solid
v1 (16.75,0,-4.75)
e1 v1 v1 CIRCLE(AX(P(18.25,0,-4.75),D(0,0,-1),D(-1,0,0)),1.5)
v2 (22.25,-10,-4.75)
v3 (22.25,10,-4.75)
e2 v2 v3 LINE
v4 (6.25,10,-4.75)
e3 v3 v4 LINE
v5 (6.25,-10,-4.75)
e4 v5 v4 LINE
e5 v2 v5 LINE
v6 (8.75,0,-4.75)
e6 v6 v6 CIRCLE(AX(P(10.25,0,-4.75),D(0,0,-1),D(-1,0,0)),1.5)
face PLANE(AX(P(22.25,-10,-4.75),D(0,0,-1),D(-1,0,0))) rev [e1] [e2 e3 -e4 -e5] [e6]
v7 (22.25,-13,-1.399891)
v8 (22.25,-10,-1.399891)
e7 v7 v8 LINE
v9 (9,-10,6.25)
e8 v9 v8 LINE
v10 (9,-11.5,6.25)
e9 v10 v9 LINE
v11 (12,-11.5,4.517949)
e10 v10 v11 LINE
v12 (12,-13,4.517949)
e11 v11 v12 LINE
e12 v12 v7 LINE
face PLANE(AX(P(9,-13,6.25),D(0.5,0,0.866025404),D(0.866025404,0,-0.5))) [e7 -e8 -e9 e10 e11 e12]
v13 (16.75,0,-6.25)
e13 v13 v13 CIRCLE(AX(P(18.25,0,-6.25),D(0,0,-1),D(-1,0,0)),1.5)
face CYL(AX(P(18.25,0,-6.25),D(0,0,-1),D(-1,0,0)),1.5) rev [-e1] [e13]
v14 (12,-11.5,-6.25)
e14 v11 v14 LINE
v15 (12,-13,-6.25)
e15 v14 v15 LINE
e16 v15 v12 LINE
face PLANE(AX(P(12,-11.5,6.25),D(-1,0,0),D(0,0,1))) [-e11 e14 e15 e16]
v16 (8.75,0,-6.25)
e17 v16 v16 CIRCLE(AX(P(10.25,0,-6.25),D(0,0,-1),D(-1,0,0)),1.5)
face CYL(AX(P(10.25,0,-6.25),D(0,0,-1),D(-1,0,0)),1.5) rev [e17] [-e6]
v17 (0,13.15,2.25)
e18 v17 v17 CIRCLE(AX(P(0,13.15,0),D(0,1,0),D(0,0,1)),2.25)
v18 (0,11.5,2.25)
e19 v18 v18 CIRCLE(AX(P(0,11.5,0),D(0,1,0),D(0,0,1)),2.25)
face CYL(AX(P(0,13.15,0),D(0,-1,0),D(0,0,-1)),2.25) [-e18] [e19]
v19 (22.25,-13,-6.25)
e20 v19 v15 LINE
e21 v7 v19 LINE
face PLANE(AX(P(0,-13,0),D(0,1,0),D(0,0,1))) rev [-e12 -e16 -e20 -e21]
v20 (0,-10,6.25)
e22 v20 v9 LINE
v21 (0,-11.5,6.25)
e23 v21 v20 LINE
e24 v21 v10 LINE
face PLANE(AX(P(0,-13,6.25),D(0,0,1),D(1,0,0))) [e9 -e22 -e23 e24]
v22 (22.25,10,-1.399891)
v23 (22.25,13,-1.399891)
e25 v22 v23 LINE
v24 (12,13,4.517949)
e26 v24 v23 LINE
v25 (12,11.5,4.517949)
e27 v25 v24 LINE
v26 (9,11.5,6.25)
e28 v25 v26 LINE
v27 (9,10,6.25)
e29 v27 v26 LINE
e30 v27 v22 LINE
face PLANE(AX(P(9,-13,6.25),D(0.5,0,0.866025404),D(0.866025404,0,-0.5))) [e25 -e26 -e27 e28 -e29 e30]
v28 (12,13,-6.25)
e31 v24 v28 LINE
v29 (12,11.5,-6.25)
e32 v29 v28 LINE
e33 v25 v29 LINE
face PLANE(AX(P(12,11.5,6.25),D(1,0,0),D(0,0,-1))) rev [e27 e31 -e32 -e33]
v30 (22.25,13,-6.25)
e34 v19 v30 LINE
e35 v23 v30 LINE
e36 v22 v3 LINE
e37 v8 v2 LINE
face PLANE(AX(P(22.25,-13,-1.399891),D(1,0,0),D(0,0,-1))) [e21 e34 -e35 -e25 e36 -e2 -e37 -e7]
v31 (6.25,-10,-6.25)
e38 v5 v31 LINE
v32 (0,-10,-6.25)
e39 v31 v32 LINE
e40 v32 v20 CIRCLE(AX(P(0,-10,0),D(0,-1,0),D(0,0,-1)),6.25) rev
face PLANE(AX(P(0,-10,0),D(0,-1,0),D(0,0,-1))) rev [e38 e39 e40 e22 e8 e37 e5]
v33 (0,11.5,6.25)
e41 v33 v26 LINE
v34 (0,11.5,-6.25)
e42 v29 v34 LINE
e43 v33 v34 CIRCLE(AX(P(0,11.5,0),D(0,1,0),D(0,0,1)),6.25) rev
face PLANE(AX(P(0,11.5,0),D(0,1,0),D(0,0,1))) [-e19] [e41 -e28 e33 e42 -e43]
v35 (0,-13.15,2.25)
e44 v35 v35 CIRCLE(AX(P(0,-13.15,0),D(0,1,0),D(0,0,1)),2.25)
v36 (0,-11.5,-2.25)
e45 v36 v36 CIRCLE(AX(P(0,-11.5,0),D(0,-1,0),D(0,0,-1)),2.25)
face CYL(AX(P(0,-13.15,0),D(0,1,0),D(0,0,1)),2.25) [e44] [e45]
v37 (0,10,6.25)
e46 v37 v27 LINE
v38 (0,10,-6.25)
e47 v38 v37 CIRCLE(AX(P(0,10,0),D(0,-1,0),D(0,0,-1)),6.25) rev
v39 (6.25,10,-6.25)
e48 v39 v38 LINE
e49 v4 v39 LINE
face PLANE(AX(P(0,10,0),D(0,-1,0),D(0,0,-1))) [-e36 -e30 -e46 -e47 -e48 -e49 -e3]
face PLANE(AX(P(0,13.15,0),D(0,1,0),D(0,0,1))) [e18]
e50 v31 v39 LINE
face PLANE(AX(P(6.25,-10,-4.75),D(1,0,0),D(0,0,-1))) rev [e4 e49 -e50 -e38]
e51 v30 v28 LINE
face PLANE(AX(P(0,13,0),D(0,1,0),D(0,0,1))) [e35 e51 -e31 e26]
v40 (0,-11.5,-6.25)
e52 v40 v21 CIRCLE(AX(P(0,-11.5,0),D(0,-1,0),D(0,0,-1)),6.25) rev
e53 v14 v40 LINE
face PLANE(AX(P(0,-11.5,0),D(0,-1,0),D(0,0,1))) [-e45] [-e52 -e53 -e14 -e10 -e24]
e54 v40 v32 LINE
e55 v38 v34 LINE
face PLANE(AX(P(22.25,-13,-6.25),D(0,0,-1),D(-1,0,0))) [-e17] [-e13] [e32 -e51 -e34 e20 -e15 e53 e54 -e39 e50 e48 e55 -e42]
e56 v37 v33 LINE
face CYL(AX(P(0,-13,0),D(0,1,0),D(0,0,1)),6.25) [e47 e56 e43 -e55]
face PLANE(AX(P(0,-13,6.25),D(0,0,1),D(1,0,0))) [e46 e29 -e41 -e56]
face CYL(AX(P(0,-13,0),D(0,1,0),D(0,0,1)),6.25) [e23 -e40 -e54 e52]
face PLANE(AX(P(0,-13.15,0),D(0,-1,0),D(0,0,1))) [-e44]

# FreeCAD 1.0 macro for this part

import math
import FreeCAD as App
import Part
import Sketcher
from FreeCAD import Vector
Q = App.Units.Quantity

doc = App.newDocument("Part")
body = doc.addObject("PartDesign::Body", "Body")

# Sketch on XZ plane
sketch1 = doc.addObject("Sketcher::SketchObject", "Sketch")
body.addObject(sketch1)
sketch1.AttachmentSupport = (doc.XZ_Plane, [""])
sketch1.MapMode = "FlatFace"
sketch1.addGeometry(Part.LineSegment(Vector(9, 6.2, 0), Vector(22.2, -1.4, 0)), False)
sketch1.addGeometry(Part.LineSegment(Vector(22.2, -1.4, 0), Vector(22.2, -6.2, 0)), False)
sketch1.addGeometry(Part.LineSegment(Vector(22.2, -6.2, 0), Vector(0, -6.2, 0)), False)
sketch1.addGeometry(Part.ArcOfCircle(Part.Circle(Vector(0, 0, 0), Vector(0, 0, 1), 6.2), math.radians(90), math.radians(270)), False)
sketch1.addGeometry(Part.LineSegment(Vector(0, 6.2, 0), Vector(9, 6.2, 0)), False)
sketch1.addConstraint(Sketcher.Constraint("Coincident", 0, 2, 1, 1))
sketch1.addConstraint(Sketcher.Constraint("Coincident", 1, 2, 2, 1))
sketch1.addConstraint(Sketcher.Constraint("Tangent", 2, 2, 3, 2))
sketch1.addConstraint(Sketcher.Constraint("Tangent", 3, 1, 4, 1))
sketch1.addConstraint(Sketcher.Constraint("Coincident", 4, 2, 0, 1))
sketch1.addConstraint(Sketcher.Constraint("Vertical", 1))
sketch1.addConstraint(Sketcher.Constraint("Horizontal", 2))
sketch1.addConstraint(Sketcher.Constraint("Horizontal", 4))
sketch1.addConstraint(Sketcher.Constraint("Coincident", 3, 3, -1, 1))
sketch1.addConstraint(Sketcher.Constraint("DistanceX", 4, 1, 4, 2, Q("9 mm")))
sketch1.addConstraint(Sketcher.Constraint("Angle", 0, Q("-30 deg")))
sketch1.addConstraint(Sketcher.Constraint("Radius", 3, Q("6.25 mm")))
sketch1.addConstraint(Sketcher.Constraint("DistanceX", 2, 2, 2, 1, Q("22.25 mm")))
pad1 = doc.addObject("PartDesign::Pad", "Pad")
body.addObject(pad1)
pad1.Profile = sketch1
pad1.Length = 26
pad1.Midplane = True

# Sketch on XZ plane
sketch2 = doc.addObject("Sketcher::SketchObject", "Sketch001")
body.addObject(sketch2)
sketch2.AttachmentSupport = (doc.XZ_Plane, [""])
sketch2.MapMode = "FlatFace"
sketch2.addGeometry(Part.LineSegment(Vector(6.2, -4.8, 0), Vector(6.2, -6.2, 0)), False)
sketch2.addGeometry(Part.LineSegment(Vector(6.2, -6.2, 0), Vector(-6.2, -6.2, 0)), False)
sketch2.addGeometry(Part.LineSegment(Vector(-6.2, -6.2, 0), Vector(-6.2, 6.2, 0)), False)
sketch2.addGeometry(Part.LineSegment(Vector(-6.2, 6.2, 0), Vector(22.2, 6.2, 0)), False)
sketch2.addGeometry(Part.LineSegment(Vector(22.2, 6.2, 0), Vector(22.2, -4.8, 0)), False)
sketch2.addGeometry(Part.LineSegment(Vector(22.2, -4.8, 0), Vector(6.2, -4.8, 0)), False)
sketch2.addConstraint(Sketcher.Constraint("Coincident", 0, 2, 1, 1))
sketch2.addConstraint(Sketcher.Constraint("Coincident", 1, 2, 2, 1))
sketch2.addConstraint(Sketcher.Constraint("Coincident", 2, 2, 3, 1))
sketch2.addConstraint(Sketcher.Constraint("Coincident", 3, 2, 4, 1))
sketch2.addConstraint(Sketcher.Constraint("Coincident", 4, 2, 5, 1))
sketch2.addConstraint(Sketcher.Constraint("Coincident", 5, 2, 0, 1))
sketch2.addConstraint(Sketcher.Constraint("Vertical", 0))
sketch2.addConstraint(Sketcher.Constraint("Horizontal", 1))
sketch2.addConstraint(Sketcher.Constraint("Vertical", 2))
sketch2.addConstraint(Sketcher.Constraint("Horizontal", 3))
sketch2.addConstraint(Sketcher.Constraint("Vertical", 4))
sketch2.addConstraint(Sketcher.Constraint("Horizontal", 5))
sketch2.addConstraint(Sketcher.Constraint("Symmetric", 0, 2, 2, 2, -1, 1))
sketch2.addConstraint(Sketcher.Constraint("Equal", 1, 2))
sketch2.addConstraint(Sketcher.Constraint("DistanceX", 5, 2, 5, 1, Q("16 mm")))
sketch2.addConstraint(Sketcher.Constraint("DistanceY", 4, 2, 4, 1, Q("11 mm")))
sketch2.addConstraint(Sketcher.Constraint("DistanceX", 1, 2, 1, 1, Q("12.5 mm")))
pocket1 = doc.addObject("PartDesign::Pocket", "Pocket")
body.addObject(pocket1)
pocket1.Profile = sketch2
pocket1.Length = 20
pocket1.Midplane = True

# Sketch on XZ plane
sketch3 = doc.addObject("Sketcher::SketchObject", "Sketch002")
body.addObject(sketch3)
sketch3.AttachmentSupport = (doc.XZ_Plane, [""])
sketch3.MapMode = "FlatFace"
sketch3.AttachmentOffset = App.Placement(Vector(0, 0, -13), App.Rotation())
sketch3.addGeometry(Part.LineSegment(Vector(12, 6, 0), Vector(12, -6, 0)), False)
sketch3.addGeometry(Part.LineSegment(Vector(12, -6, 0), Vector(-6, -6, 0)), False)
sketch3.addGeometry(Part.LineSegment(Vector(-6, -6, 0), Vector(-6, 6, 0)), False)
sketch3.addGeometry(Part.LineSegment(Vector(-6, 6, 0), Vector(12, 6, 0)), False)
sketch3.addConstraint(Sketcher.Constraint("Coincident", 0, 2, 1, 1))
sketch3.addConstraint(Sketcher.Constraint("Coincident", 1, 2, 2, 1))
sketch3.addConstraint(Sketcher.Constraint("Coincident", 2, 2, 3, 1))
sketch3.addConstraint(Sketcher.Constraint("Coincident", 3, 2, 0, 1))
sketch3.addConstraint(Sketcher.Constraint("Vertical", 0))
sketch3.addConstraint(Sketcher.Constraint("Horizontal", 1))
sketch3.addConstraint(Sketcher.Constraint("Vertical", 2))
sketch3.addConstraint(Sketcher.Constraint("Horizontal", 3))
sketch3.addConstraint(Sketcher.Constraint("DistanceY", 0, 2, 0, 1, Q("12.5 mm")))
sketch3.addConstraint(Sketcher.Constraint("DistanceX", -1, 1, 0, 2, Q("12 mm")))
sketch3.addConstraint(Sketcher.Constraint("DistanceX", 1, 2, 1, 1, Q("18.25 mm")))
sketch3.addConstraint(Sketcher.Constraint("DistanceY", 0, 2, -1, 1, Q("6.25 mm")))
pocket2 = doc.addObject("PartDesign::Pocket", "Pocket001")
body.addObject(pocket2)
pocket2.Profile = sketch3
pocket2.Length = 1.5
pocket2.Reversed = True
doc.recompute()

mirrored = doc.addObject("PartDesign::Mirrored", "Mirrored")
body.addObject(mirrored)
mirrored.Originals = [pocket2]
mirrored.MirrorPlane = (doc.XZ_Plane, [""])
body.Tip = mirrored

# Sketch on XZ plane
sketch4 = doc.addObject("Sketcher::SketchObject", "Sketch003")
body.addObject(sketch4)
sketch4.AttachmentSupport = (doc.XZ_Plane, [""])
sketch4.MapMode = "FlatFace"
sketch4.AttachmentOffset = App.Placement(Vector(0, 0, -11.5), App.Rotation())
sketch4.addGeometry(Part.Circle(Vector(0, 0, 0), Vector(0, 0, 1), 2.2), False)
sketch4.addConstraint(Sketcher.Constraint("Coincident", 0, 3, -1, 1))
sketch4.addConstraint(Sketcher.Constraint("Diameter", 0, Q("4.5 mm")))
pad2 = doc.addObject("PartDesign::Pad", "Pad001")
body.addObject(pad2)
pad2.Profile = sketch4
pad2.Length = 1.65
pad2.Reversed = True
doc.recompute()

mirrored2 = doc.addObject("PartDesign::Mirrored", "Mirrored001")
body.addObject(mirrored2)
mirrored2.Originals = [pad2]
mirrored2.MirrorPlane = (doc.XZ_Plane, [""])
body.Tip = mirrored2

# Sketch on XY plane
sketch5 = doc.addObject("Sketcher::SketchObject", "Sketch004")
body.addObject(sketch5)
sketch5.AttachmentSupport = (doc.XY_Plane, [""])
sketch5.MapMode = "FlatFace"
sketch5.AttachmentOffset = App.Placement(Vector(0, 0, -6.25), App.Rotation())
sketch5.addGeometry(Part.Circle(Vector(10.2, 0, 0), Vector(0, 0, 1), 1.5), False)
sketch5.addGeometry(Part.Circle(Vector(18.2, 0, 0), Vector(0, 0, 1), 1.5), False)
sketch5.addConstraint(Sketcher.Constraint("Equal", 0, 1))
sketch5.addConstraint(Sketcher.Constraint("PointOnObject", 0, 3, -1))
sketch5.addConstraint(Sketcher.Constraint("PointOnObject", 1, 3, -1))
sketch5.addConstraint(Sketcher.Constraint("Diameter", 0, Q("3 mm")))
sketch5.addConstraint(Sketcher.Constraint("DistanceX", 0, 3, 1, 3, Q("8 mm")))
sketch5.addConstraint(Sketcher.Constraint("DistanceX", -1, 1, 0, 3, Q("10.25 mm")))
doc.recompute()
hole = doc.addObject("PartDesign::Hole", "Hole")
body.addObject(hole)
hole.Profile = sketch5
hole.ThreadType = "None"
hole.Diameter = 3
hole.DepthType = "Dimension"
hole.Depth = 12.5
hole.DrillPoint = "Flat"
hole.Reversed = True

doc.recompute()
